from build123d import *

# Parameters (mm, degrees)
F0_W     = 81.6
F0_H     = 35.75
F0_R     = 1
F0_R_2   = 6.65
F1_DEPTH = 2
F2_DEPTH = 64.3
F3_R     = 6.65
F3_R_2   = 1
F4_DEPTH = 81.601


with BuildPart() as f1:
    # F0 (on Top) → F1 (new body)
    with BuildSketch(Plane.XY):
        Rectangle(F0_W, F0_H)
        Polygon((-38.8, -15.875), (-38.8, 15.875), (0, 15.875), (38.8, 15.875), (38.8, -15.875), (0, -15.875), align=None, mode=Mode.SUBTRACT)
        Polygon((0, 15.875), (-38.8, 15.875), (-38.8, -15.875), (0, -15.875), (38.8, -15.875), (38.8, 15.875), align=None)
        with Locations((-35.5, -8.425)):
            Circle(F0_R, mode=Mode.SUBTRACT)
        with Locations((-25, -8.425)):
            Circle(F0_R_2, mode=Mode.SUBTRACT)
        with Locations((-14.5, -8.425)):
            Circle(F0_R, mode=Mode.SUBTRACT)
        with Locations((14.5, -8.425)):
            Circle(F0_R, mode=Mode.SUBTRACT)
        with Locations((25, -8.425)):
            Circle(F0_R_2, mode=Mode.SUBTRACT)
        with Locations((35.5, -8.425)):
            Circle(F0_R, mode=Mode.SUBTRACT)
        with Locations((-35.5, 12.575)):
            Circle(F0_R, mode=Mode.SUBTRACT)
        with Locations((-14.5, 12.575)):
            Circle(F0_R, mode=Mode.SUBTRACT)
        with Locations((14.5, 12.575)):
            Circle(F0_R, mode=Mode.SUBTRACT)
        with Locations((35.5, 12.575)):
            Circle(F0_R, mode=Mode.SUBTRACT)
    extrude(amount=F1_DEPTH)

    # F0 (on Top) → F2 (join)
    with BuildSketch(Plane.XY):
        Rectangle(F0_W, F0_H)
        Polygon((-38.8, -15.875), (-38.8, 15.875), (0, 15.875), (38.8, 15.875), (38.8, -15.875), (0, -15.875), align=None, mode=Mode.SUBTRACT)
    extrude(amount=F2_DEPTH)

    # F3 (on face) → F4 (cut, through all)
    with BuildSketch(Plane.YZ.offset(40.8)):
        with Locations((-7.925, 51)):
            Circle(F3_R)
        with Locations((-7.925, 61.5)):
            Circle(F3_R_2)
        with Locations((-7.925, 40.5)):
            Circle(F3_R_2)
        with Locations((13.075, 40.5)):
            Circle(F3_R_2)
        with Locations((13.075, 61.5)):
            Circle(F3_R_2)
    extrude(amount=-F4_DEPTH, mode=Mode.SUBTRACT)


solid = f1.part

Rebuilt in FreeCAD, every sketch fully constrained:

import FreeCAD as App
import Part
import Sketcher
from FreeCAD import Vector

doc = App.newDocument("Part")
params = doc.addObject("Spreadsheet::Sheet", "Params")
for row, (alias, value) in enumerate([
    ("sketch1_diameter", "2 mm"),
    ("sketch1_diameter2", "13.3 mm"),
    ("sketch1_width", "81.6 mm"),
    ("sketch1_height", "35.75 mm"),
    ("pad1_length", "2 mm"),
    ("sketch2_width", "81.6 mm"),
    ("sketch2_width2", "77.6 mm"),
    ("sketch2_height", "35.75 mm"),
    ("pad2_length", "64.3 mm"),
    ("sketch3_diameter", "2 mm"),
    ("sketch3_diameter2", "13.3 mm"),
], start=1):
    params.set(f"A{row}", alias)
    params.set(f"B{row}", "=" + value)
    params.setAlias(f"B{row}", alias)

body = doc.addObject("PartDesign::Body", "Body")

# Sketch on XY plane
sketch1 = body.newObject("Sketcher::SketchObject", "Sketch")
sketch1.AttachmentSupport = (doc.getObject("XY_Plane"), [""])
sketch1.MapMode = "FlatFace"
sketch1.addGeometry([
    Part.LineSegment(Vector(-40.8, 17.9, 0), Vector(-40.8, -17.9, 0)),  # 0
    Part.LineSegment(Vector(-40.8, -17.9, 0), Vector(40.8, -17.9, 0)),  # 1
    Part.LineSegment(Vector(40.8, -17.9, 0), Vector(40.8, 17.9, 0)),  # 2
    Part.LineSegment(Vector(40.8, 17.9, 0), Vector(-40.8, 17.9, 0)),  # 3
    Part.Circle(Vector(-35.5, -8.4, 0), Vector(0, 0, 1), 1),  # 4
    Part.Circle(Vector(-25, -8.4, 0), Vector(0, 0, 1), 6.7),  # 5
    Part.Circle(Vector(-14.5, -8.4, 0), Vector(0, 0, 1), 1),  # 6
    Part.Circle(Vector(14.5, -8.4, 0), Vector(0, 0, 1), 1),  # 7
    Part.Circle(Vector(25, -8.4, 0), Vector(0, 0, 1), 6.7),  # 8
    Part.Circle(Vector(35.5, -8.4, 0), Vector(0, 0, 1), 1),  # 9
    Part.Circle(Vector(-35.5, 12.6, 0), Vector(0, 0, 1), 1),  # 10
    Part.Circle(Vector(-14.5, 12.6, 0), Vector(0, 0, 1), 1),  # 11
    Part.Circle(Vector(14.5, 12.6, 0), Vector(0, 0, 1), 1),  # 12
    Part.Circle(Vector(35.5, 12.6, 0), Vector(0, 0, 1), 1),  # 13
], False)
sketch1.addConstraint([
    Sketcher.Constraint("Coincident", 0, 2, 1, 1),
    Sketcher.Constraint("Coincident", 1, 2, 2, 1),
    Sketcher.Constraint("Coincident", 2, 2, 3, 1),
    Sketcher.Constraint("Coincident", 3, 2, 0, 1),
    Sketcher.Constraint("Vertical", 0),
    Sketcher.Constraint("Horizontal", 1),
    Sketcher.Constraint("Vertical", 2),
    Sketcher.Constraint("Horizontal", 3),
    Sketcher.Constraint("Equal", 4, 6),
    Sketcher.Constraint("Equal", 6, 7),
    Sketcher.Constraint("Equal", 5, 8),
    Sketcher.Constraint("Equal", 7, 9),
    Sketcher.Constraint("Equal", 9, 10),
    Sketcher.Constraint("Equal", 10, 11),
    Sketcher.Constraint("Equal", 11, 12),
    Sketcher.Constraint("Equal", 12, 13),
    Sketcher.Constraint("Symmetric", 0, 2, 2, 2, -1, 1),
    Sketcher.Constraint("Symmetric", 6, 3, 7, 3, -2),
    Sketcher.Constraint("Symmetric", 5, 3, 8, 3, -2),
    Sketcher.Constraint("Symmetric", 4, 3, 9, 3, -2),
    Sketcher.Constraint("Symmetric", 11, 3, 12, 3, -2),
    Sketcher.Constraint("Symmetric", 10, 3, 13, 3, -2),
    Sketcher.Constraint("Horizontal", 4, 3, 5, 3),
    Sketcher.Constraint("Horizontal", 5, 3, 6, 3),
    Sketcher.Constraint("Horizontal", 10, 3, 11, 3),
    Sketcher.Constraint("Vertical", 4, 3, 10, 3),
    Sketcher.Constraint("Vertical", 6, 3, 11, 3),
    Sketcher.Constraint("Diameter", 4, 2.0),
    Sketcher.Constraint("Diameter", 5, 13.3),
    Sketcher.Constraint("DistanceX", 1, 1, 1, 2, 81.6),
    Sketcher.Constraint("DistanceX", 5, 3, -1, 1, 25.0),
    Sketcher.Constraint("DistanceX", 4, 3, 6, 3, 21.0),
    Sketcher.Constraint("DistanceX", 6, 3, 7, 3, 29.0),
    Sketcher.Constraint("DistanceY", 4, 3, 10, 3, 21.0),
    Sketcher.Constraint("DistanceY", 0, 2, 0, 1, 35.75),
    Sketcher.Constraint("DistanceY", 13, 3, 2, 2, 5.3),
])
sketch1.setExpression("Constraints[27]", "Params.sketch1_diameter")
sketch1.setExpression("Constraints[28]", "Params.sketch1_diameter2")
sketch1.setExpression("Constraints[29]", "Params.sketch1_width")
sketch1.setExpression("Constraints[34]", "Params.sketch1_height")
pad1 = body.newObject("PartDesign::Pad", "Pad")
pad1.Profile = sketch1
pad1.setExpression("Length", "Params.pad1_length")

# Sketch on XY plane
sketch2 = body.newObject("Sketcher::SketchObject", "Sketch001")
sketch2.AttachmentSupport = (doc.getObject("XY_Plane"), [""])
sketch2.MapMode = "FlatFace"
sketch2.addGeometry([
    Part.LineSegment(Vector(-41, 18, 0), Vector(-41, -18, 0)),  # 0
    Part.LineSegment(Vector(-41, -18, 0), Vector(41, -18, 0)),  # 1
    Part.LineSegment(Vector(41, -18, 0), Vector(41, 18, 0)),  # 2
    Part.LineSegment(Vector(41, 18, 0), Vector(-41, 18, 0)),  # 3
    Part.LineSegment(Vector(39, -16, 0), Vector(-39, -16, 0)),  # 4
    Part.LineSegment(Vector(-39, -16, 0), Vector(-39, 16, 0)),  # 5
    Part.LineSegment(Vector(-39, 16, 0), Vector(39, 16, 0)),  # 6
    Part.LineSegment(Vector(39, 16, 0), Vector(39, -16, 0)),  # 7
], False)
sketch2.addConstraint([
    Sketcher.Constraint("Coincident", 0, 2, 1, 1),
    Sketcher.Constraint("Coincident", 1, 2, 2, 1),
    Sketcher.Constraint("Coincident", 2, 2, 3, 1),
    Sketcher.Constraint("Coincident", 3, 2, 0, 1),
    Sketcher.Constraint("Coincident", 4, 2, 5, 1),
    Sketcher.Constraint("Coincident", 5, 2, 6, 1),
    Sketcher.Constraint("Coincident", 6, 2, 7, 1),
    Sketcher.Constraint("Coincident", 7, 2, 4, 1),
    Sketcher.Constraint("Vertical", 0),
    Sketcher.Constraint("Horizontal", 1),
    Sketcher.Constraint("Vertical", 2),
    Sketcher.Constraint("Horizontal", 3),
    Sketcher.Constraint("Horizontal", 4),
    Sketcher.Constraint("Vertical", 5),
    Sketcher.Constraint("Horizontal", 6),
    Sketcher.Constraint("Vertical", 7),
    Sketcher.Constraint("Symmetric", 0, 2, 2, 2, -1, 1),
    Sketcher.Constraint("Symmetric", 4, 2, 6, 2, -1, 1),
    Sketcher.Constraint("DistanceX", 1, 1, 1, 2, 81.6),
    Sketcher.Constraint("DistanceX", 4, 2, 4, 1, 77.6),
    Sketcher.Constraint("DistanceY", 0, 2, 4, 2, 2.0),
    Sketcher.Constraint("DistanceY", 0, 2, 0, 1, 35.75),
])
sketch2.setExpression("Constraints[18]", "Params.sketch2_width")
sketch2.setExpression("Constraints[19]", "Params.sketch2_width2")
sketch2.setExpression("Constraints[21]", "Params.sketch2_height")
pad2 = body.newObject("PartDesign::Pad", "Pad001")
pad2.Profile = sketch2
pad2.setExpression("Length", "Params.pad2_length")

# Sketch on YZ plane
sketch3 = body.newObject("Sketcher::SketchObject", "Sketch002")
sketch3.AttachmentSupport = (doc.getObject("YZ_Plane"), [""])
sketch3.MapMode = "FlatFace"
sketch3.AttachmentOffset = App.Placement(Vector(0, 0, 40.8), App.Rotation())
sketch3.addGeometry([
    Part.Circle(Vector(-7.9, 51, 0), Vector(0, 0, 1), 6.7),  # 0
    Part.Circle(Vector(-7.9, 61.5, 0), Vector(0, 0, 1), 1),  # 1
    Part.Circle(Vector(-7.9, 40.5, 0), Vector(0, 0, 1), 1),  # 2
    Part.Circle(Vector(13.1, 40.5, 0), Vector(0, 0, 1), 1),  # 3
    Part.Circle(Vector(13.1, 61.5, 0), Vector(0, 0, 1), 1),  # 4
], False)
sketch3.addConstraint([
    Sketcher.Constraint("Equal", 1, 2),
    Sketcher.Constraint("Equal", 2, 3),
    Sketcher.Constraint("Equal", 3, 4),
    Sketcher.Constraint("Horizontal", 2, 3, 3, 3),
    Sketcher.Constraint("Horizontal", 1, 3, 4, 3),
    Sketcher.Constraint("Vertical", 0, 3, 1, 3),
    Sketcher.Constraint("Vertical", 1, 3, 2, 3),
    Sketcher.Constraint("Vertical", 3, 3, 4, 3),
    Sketcher.Constraint("Diameter", 1, 2.0),
    Sketcher.Constraint("Diameter", 0, 13.3),
    Sketcher.Constraint("DistanceY", -1, 1, 0, 3, 51.0),
    Sketcher.Constraint("DistanceY", 2, 3, 1, 3, 21.0),
    Sketcher.Constraint("DistanceX", 2, 3, 3, 3, 21.0),
    Sketcher.Constraint("DistanceY", -1, 1, 1, 3, 61.5),
    Sketcher.Constraint("DistanceX", 0, 3, -1, 1, 7.925),
])
sketch3.setExpression("Constraints[8]", "Params.sketch3_diameter")
sketch3.setExpression("Constraints[9]", "Params.sketch3_diameter2")
pocket1 = body.newObject("PartDesign::Pocket", "Pocket")
pocket1.Profile = sketch3
pocket1.Type = "ThroughAll"

doc.recompute()
